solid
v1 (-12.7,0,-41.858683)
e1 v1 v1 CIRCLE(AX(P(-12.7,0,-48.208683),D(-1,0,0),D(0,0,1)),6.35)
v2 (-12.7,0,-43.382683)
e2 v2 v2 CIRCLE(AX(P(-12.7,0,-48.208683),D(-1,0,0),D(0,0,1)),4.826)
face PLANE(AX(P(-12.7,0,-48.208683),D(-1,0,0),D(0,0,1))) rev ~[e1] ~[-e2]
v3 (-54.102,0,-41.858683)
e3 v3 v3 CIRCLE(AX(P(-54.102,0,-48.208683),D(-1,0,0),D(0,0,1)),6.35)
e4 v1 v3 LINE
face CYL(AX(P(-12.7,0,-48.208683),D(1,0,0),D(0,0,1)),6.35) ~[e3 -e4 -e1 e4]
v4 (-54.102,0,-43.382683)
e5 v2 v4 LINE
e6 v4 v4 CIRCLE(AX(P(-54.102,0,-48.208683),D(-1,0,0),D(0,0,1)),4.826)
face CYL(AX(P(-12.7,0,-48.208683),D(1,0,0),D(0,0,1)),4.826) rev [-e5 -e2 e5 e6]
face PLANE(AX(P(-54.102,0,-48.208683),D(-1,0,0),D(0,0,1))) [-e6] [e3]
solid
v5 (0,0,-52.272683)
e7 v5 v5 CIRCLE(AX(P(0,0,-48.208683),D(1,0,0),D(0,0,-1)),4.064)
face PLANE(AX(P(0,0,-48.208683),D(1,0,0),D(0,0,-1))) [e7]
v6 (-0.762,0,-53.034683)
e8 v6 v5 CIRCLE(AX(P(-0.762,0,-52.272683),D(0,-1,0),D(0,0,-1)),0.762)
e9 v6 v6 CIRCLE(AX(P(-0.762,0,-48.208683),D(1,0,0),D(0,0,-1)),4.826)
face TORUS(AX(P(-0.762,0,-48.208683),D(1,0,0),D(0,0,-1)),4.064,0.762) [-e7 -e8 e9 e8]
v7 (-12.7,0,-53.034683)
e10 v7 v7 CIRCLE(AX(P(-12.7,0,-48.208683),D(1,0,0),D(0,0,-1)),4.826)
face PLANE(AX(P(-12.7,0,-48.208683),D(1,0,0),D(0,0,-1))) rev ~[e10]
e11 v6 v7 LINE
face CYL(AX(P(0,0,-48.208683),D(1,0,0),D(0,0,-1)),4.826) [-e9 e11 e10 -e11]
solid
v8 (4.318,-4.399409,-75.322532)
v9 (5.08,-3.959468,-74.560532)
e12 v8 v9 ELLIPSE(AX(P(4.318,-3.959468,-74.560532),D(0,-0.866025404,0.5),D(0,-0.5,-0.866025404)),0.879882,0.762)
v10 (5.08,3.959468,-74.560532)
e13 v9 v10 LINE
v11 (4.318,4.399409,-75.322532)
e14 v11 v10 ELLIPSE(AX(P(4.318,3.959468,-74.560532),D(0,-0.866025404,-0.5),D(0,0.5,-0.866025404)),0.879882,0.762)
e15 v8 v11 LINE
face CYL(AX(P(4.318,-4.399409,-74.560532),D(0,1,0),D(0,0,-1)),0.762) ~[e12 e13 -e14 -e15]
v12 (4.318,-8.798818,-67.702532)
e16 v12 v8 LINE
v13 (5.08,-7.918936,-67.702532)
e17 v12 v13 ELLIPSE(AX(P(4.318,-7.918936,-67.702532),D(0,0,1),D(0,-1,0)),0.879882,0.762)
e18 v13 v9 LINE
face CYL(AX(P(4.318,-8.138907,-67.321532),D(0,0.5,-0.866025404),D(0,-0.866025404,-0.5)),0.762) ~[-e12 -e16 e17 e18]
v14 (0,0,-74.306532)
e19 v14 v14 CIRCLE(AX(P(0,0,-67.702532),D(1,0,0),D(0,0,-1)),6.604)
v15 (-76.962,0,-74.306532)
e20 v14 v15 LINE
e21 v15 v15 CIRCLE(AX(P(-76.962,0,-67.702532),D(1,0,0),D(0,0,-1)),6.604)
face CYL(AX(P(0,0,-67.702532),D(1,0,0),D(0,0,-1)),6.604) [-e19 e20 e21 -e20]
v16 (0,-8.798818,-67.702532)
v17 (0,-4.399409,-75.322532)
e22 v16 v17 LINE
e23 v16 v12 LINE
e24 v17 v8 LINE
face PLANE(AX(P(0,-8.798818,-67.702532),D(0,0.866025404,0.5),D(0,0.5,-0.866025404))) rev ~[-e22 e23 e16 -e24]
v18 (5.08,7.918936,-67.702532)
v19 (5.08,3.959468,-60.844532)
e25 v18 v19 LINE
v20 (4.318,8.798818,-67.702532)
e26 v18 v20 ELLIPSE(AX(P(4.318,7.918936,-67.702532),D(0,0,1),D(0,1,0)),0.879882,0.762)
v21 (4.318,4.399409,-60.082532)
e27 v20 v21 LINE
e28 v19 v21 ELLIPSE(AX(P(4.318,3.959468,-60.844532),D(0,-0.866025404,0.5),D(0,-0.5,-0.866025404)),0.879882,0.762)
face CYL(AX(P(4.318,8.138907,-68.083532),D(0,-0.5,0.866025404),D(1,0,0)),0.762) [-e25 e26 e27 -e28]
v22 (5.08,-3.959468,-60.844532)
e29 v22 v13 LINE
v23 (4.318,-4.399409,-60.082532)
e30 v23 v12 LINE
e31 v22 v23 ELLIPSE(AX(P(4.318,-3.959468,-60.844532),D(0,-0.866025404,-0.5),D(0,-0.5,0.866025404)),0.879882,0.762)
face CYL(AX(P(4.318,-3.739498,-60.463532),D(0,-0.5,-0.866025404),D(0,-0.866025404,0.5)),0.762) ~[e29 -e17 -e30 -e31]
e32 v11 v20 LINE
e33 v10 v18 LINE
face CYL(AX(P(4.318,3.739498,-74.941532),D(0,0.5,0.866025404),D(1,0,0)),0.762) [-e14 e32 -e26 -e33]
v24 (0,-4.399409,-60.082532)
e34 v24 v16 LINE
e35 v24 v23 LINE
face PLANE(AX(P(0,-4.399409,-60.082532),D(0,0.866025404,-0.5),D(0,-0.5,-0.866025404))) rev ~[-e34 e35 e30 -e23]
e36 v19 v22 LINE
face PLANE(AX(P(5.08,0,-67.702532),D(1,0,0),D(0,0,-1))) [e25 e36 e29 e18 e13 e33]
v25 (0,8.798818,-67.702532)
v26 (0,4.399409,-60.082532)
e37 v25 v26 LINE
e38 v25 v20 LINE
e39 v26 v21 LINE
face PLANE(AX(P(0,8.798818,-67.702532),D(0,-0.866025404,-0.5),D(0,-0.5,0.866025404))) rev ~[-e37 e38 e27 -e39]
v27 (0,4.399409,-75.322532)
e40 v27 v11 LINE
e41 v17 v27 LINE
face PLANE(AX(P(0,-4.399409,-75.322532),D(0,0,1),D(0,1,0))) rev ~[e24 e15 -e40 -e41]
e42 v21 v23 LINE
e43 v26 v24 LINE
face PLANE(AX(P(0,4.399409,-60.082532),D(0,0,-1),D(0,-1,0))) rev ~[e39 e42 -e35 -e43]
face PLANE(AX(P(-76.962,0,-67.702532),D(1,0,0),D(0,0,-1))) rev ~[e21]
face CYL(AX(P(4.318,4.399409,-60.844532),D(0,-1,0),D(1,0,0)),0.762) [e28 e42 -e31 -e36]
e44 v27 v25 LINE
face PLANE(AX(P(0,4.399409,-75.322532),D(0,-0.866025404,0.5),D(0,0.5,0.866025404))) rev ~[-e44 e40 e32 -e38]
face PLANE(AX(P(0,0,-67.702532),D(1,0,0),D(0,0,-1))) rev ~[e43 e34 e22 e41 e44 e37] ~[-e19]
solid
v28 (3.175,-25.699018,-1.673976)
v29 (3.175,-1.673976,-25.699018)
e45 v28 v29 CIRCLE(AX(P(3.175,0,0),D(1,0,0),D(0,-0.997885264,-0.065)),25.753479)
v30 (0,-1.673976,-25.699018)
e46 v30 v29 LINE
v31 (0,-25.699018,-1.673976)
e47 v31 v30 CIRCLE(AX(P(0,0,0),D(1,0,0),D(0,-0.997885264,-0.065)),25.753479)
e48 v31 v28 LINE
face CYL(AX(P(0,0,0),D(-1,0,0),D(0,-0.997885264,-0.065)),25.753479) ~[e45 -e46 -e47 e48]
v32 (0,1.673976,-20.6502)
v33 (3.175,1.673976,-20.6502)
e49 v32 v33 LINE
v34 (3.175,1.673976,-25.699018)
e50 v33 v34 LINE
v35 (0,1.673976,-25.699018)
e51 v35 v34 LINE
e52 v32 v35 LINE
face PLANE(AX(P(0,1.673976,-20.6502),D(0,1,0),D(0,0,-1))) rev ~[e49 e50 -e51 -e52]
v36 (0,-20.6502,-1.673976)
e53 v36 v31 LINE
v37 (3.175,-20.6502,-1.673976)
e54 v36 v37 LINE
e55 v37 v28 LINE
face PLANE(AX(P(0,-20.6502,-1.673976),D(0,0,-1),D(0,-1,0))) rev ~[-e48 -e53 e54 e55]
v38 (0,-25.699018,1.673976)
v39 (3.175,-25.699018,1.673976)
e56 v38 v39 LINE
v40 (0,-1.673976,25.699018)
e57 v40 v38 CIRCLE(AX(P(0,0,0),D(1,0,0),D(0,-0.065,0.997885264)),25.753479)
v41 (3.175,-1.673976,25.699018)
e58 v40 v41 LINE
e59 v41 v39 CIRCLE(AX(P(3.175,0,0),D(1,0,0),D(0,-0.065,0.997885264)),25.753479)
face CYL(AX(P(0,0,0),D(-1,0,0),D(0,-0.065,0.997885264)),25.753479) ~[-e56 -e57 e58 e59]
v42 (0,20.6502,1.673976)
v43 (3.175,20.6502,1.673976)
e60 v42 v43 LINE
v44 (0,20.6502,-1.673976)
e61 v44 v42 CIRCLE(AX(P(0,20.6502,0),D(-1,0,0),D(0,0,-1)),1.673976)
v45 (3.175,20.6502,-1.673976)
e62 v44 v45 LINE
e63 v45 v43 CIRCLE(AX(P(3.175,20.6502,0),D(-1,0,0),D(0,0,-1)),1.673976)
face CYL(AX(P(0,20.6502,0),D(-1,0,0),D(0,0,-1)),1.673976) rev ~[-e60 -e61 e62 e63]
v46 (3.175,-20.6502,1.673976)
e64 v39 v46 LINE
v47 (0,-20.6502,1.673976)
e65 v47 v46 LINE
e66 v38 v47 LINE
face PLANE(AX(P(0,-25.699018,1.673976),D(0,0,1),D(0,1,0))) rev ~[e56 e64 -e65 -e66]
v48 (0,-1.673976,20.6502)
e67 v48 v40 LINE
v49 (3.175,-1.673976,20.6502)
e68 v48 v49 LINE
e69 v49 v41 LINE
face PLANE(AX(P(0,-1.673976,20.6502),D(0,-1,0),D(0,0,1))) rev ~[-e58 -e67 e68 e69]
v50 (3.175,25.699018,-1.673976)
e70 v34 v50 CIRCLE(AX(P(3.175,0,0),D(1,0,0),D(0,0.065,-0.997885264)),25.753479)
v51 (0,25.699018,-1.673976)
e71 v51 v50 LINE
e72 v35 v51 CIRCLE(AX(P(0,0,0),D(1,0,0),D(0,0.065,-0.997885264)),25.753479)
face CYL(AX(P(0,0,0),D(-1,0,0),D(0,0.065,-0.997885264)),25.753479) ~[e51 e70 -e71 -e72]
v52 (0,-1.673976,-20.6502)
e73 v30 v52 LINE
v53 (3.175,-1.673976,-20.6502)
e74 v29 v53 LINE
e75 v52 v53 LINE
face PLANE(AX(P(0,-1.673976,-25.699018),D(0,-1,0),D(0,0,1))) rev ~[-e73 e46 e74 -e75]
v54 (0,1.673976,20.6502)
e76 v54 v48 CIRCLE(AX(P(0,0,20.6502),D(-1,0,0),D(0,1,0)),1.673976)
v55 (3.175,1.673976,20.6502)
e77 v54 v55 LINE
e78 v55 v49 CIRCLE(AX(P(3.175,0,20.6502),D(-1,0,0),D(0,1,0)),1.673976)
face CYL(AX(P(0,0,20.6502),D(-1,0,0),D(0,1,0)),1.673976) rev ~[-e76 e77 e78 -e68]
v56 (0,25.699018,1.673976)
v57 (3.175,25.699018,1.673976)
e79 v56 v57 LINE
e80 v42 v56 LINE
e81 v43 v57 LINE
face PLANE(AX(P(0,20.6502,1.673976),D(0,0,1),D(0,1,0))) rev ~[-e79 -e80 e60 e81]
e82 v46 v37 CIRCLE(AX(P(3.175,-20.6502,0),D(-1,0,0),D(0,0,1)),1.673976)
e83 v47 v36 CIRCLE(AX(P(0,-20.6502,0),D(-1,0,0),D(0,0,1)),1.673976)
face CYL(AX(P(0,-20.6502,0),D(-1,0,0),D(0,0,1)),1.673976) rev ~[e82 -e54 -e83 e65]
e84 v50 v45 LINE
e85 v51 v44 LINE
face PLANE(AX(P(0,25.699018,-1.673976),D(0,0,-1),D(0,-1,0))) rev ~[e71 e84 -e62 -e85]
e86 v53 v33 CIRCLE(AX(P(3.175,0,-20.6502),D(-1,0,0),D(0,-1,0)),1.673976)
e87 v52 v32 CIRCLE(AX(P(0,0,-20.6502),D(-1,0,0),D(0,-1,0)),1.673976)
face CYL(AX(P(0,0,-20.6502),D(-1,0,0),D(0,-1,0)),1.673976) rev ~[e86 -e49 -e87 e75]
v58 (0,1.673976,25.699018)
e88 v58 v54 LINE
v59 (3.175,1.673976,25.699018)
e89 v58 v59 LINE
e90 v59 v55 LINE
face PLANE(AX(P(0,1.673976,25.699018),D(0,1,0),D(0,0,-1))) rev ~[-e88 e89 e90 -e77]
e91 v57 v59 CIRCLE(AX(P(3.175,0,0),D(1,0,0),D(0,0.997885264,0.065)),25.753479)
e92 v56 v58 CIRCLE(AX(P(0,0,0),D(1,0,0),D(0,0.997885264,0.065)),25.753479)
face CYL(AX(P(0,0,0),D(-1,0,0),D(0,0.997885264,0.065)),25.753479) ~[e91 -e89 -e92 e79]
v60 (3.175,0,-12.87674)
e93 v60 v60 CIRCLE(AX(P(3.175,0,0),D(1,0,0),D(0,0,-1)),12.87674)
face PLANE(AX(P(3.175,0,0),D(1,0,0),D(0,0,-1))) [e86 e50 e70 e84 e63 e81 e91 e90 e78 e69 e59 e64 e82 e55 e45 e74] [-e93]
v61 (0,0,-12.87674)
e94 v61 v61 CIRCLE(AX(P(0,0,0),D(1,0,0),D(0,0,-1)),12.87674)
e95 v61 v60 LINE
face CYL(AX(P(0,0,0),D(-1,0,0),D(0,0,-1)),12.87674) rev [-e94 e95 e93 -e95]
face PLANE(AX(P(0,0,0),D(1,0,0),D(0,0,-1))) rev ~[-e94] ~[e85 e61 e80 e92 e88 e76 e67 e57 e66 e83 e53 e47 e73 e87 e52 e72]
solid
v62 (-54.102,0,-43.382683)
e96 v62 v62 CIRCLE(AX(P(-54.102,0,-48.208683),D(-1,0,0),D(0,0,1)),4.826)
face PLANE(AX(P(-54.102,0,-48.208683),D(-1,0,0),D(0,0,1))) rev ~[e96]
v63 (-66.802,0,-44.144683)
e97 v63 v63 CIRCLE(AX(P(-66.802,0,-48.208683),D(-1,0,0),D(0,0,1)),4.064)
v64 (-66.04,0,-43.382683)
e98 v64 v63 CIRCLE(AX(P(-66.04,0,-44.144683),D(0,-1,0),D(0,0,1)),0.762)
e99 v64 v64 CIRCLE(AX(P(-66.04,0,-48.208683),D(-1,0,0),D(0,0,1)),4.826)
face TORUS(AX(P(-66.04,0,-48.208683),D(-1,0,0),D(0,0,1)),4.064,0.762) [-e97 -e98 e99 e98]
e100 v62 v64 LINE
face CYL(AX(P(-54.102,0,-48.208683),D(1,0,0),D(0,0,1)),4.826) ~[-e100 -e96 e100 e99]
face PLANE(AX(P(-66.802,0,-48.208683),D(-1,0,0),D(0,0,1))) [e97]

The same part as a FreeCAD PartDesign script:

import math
import FreeCAD as App
import Part
import Sketcher
Q = App.Units.Quantity


def edges_at(feature, points):
    """Names of the edges that pass closest to the given points."""
    edges = feature.Shape.Edges
    near = lambda p: min(range(len(edges)), key=lambda i: edges[i].distToShape(Part.Vertex(*p))[0])
    return sorted({f"Edge{near(p) + 1}" for p in points})

doc = App.newDocument("Part")
body = doc.addObject("PartDesign::Body", "Body")

sketch1 = body.newObject("Sketcher::SketchObject", "Sketch")
sketch1.AttachmentSupport = (doc.getObject("YZ_Plane"), [""])
sketch1.MapMode = "FlatFace"
sketch1.addGeometry([
    Part.LineSegment(App.Vector(1.7, -20.7, 0), App.Vector(1.7, -25.7, 0)),
    Part.ArcOfCircle(Part.Circle(App.Vector(0, 0, 0), App.Vector(0, 0, 1), 25.8), math.radians(-86), math.radians(-4)),
    Part.LineSegment(App.Vector(25.7, -1.7, 0), App.Vector(20.7, -1.7, 0)),
    Part.ArcOfCircle(Part.Circle(App.Vector(20.7, 0, 0), App.Vector(0, 0, 1), 1.7), math.radians(90), math.radians(270)),
    Part.LineSegment(App.Vector(20.7, 1.7, 0), App.Vector(25.7, 1.7, 0)),
    Part.ArcOfCircle(Part.Circle(App.Vector(0, 0, 0), App.Vector(0, 0, 1), 25.8), math.radians(4), math.radians(86)),
    Part.LineSegment(App.Vector(1.7, 25.7, 0), App.Vector(1.7, 20.7, 0)),
    Part.ArcOfCircle(Part.Circle(App.Vector(0, 20.7, 0), App.Vector(0, 0, 1), 1.7), math.radians(180), math.radians(360)),
    Part.LineSegment(App.Vector(-1.7, 20.7, 0), App.Vector(-1.7, 25.7, 0)),
    Part.ArcOfCircle(Part.Circle(App.Vector(0, 0, 0), App.Vector(0, 0, 1), 25.8), math.radians(94), math.radians(176)),
    Part.LineSegment(App.Vector(-25.7, 1.7, 0), App.Vector(-20.7, 1.7, 0)),
    Part.ArcOfCircle(Part.Circle(App.Vector(-20.7, 0, 0), App.Vector(0, 0, 1), 1.7), math.radians(-90), math.radians(90)),
    Part.LineSegment(App.Vector(-20.7, -1.7, 0), App.Vector(-25.7, -1.7, 0)),
    Part.ArcOfCircle(Part.Circle(App.Vector(0, 0, 0), App.Vector(0, 0, 1), 25.8), math.radians(-176), math.radians(-94)),
    Part.LineSegment(App.Vector(-1.7, -25.7, 0), App.Vector(-1.7, -20.7, 0)),
    Part.ArcOfCircle(Part.Circle(App.Vector(0, -20.7, 0), App.Vector(0, 0, 1), 1.7), math.radians(0), math.radians(180)),
    Part.Circle(App.Vector(0, 0, 0), App.Vector(0, 0, 1), 12.9),
], False)
sketch1.addConstraint([
    Sketcher.Constraint("Coincident", 0, 2, 1, 1),
    Sketcher.Constraint("Coincident", 1, 2, 2, 1),
    Sketcher.Constraint("Tangent", 2, 2, 3, 2),
    Sketcher.Constraint("Tangent", 3, 1, 4, 1),
    Sketcher.Constraint("Coincident", 4, 2, 5, 1),
    Sketcher.Constraint("Coincident", 5, 2, 6, 1),
    Sketcher.Constraint("Tangent", 6, 2, 7, 2),
    Sketcher.Constraint("Tangent", 7, 1, 8, 1),
    Sketcher.Constraint("Coincident", 8, 2, 9, 1),
    Sketcher.Constraint("Coincident", 9, 2, 10, 1),
    Sketcher.Constraint("Tangent", 10, 2, 11, 2),
    Sketcher.Constraint("Tangent", 11, 1, 12, 1),
    Sketcher.Constraint("Coincident", 12, 2, 13, 1),
    Sketcher.Constraint("Coincident", 13, 2, 14, 1),
    Sketcher.Constraint("Tangent", 14, 2, 15, 2),
    Sketcher.Constraint("Tangent", 15, 1, 0, 1),
    Sketcher.Constraint("Vertical", 0),
    Sketcher.Constraint("Horizontal", 2),
    Sketcher.Constraint("Horizontal", 4),
    Sketcher.Constraint("Vertical", 6),
    Sketcher.Constraint("Vertical", 8),
    Sketcher.Constraint("Horizontal", 10),
    Sketcher.Constraint("Horizontal", 12),
    Sketcher.Constraint("Vertical", 14),
    Sketcher.Constraint("Coincident", 1, 3, -1, 1),
    Sketcher.Constraint("Coincident", 5, 3, -1, 1),
    Sketcher.Constraint("Coincident", 9, 3, -1, 1),
    Sketcher.Constraint("Coincident", 13, 3, -1, 1),
    Sketcher.Constraint("Coincident", 16, 3, -1, 1),
    Sketcher.Constraint("Equal", 1, 5),
    Sketcher.Constraint("Equal", 3, 7),
    Sketcher.Constraint("Equal", 5, 9),
    Sketcher.Constraint("Equal", 7, 11),
    Sketcher.Constraint("Equal", 9, 13),
    Sketcher.Constraint("Equal", 11, 15),
    Sketcher.Constraint("Symmetric", 3, 3, 11, 3, -1, 1),
    Sketcher.Constraint("Symmetric", 7, 3, 15, 3, -1, 1),
    Sketcher.Constraint("PointOnObject", 3, 3, -1),
    Sketcher.Constraint("PointOnObject", 7, 3, -2),
    Sketcher.Constraint("Equal", 12, 0),
    Sketcher.Constraint("Diameter", 16, Q("25.753479 mm")),
    Sketcher.Constraint("DistanceX", -1, 1, 3, 3, Q("0.813 in")),
    Sketcher.Constraint("Radius", 1, Q("25.753479 mm")),
    Sketcher.Constraint("Radius", 3, Q("1.673976 mm")),
])
pad1 = body.newObject("PartDesign::Pad", "Pad")
pad1.Profile = sketch1
pad1.Length = Q("0.125 in")
body2 = doc.addObject("PartDesign::Body", "Body001")

sketch2 = body2.newObject("Sketcher::SketchObject", "Sketch001")
sketch2.AttachmentSupport = (doc.getObject("YZ_Plane001"), [""])
sketch2.MapMode = "FlatFace"
sketch2.addGeometry(Part.Circle(App.Vector(0, -48.2, 0), App.Vector(0, 0, 1), 4.8), False)
sketch2.addConstraint([
    Sketcher.Constraint("PointOnObject", 0, 3, -2),
    Sketcher.Constraint("Diameter", 0, Q("0.38 in")),
    Sketcher.Constraint("DistanceY", 0, 3, -1, 1, Q("48.208683 mm")),
])
pad2 = body2.newObject("PartDesign::Pad", "Pad001")
pad2.Profile = sketch2
pad2.Length = Q("0.5 in")
pad2.Reversed = True
doc.recompute()

fillet = body2.newObject("PartDesign::Fillet", "Fillet")
fillet.Base = (pad2, edges_at(pad2, [(0, 0, -43.383)]))
fillet.Radius = Q("0.03 in")
body3 = doc.addObject("PartDesign::Body", "Body002")

sketch3 = body3.newObject("Sketcher::SketchObject", "Sketch002")
sketch3.AttachmentSupport = (doc.getObject("YZ_Plane002"), [""])
sketch3.MapMode = "FlatFace"
sketch3.AttachmentOffset = App.Placement(App.Vector(0, 0, -0.5 * 25.4), App.Rotation())
sketch3.addGeometry([
    Part.Circle(App.Vector(0, -48.2, 0), App.Vector(0, 0, 1), 6.3),
    Part.Circle(App.Vector(0, -48.2, 0), App.Vector(0, 0, 1), 4.8),
], False)
sketch3.addConstraint([
    Sketcher.Constraint("Coincident", 1, 3, 0, 3),
    Sketcher.Constraint("PointOnObject", 0, 3, -2),
    Sketcher.Constraint("Diameter", 0, Q("0.5 in")),
    Sketcher.Constraint("Diameter", 1, Q("0.38 in")),
    Sketcher.Constraint("DistanceY", 0, 3, -1, 1, Q("48.208683 mm")),
])
pad3 = body3.newObject("PartDesign::Pad", "Pad002")
pad3.Profile = sketch3
pad3.Length = Q("1.63 in")
pad3.Reversed = True
body4 = doc.addObject("PartDesign::Body", "Body003")

sketch4 = body4.newObject("Sketcher::SketchObject", "Sketch003")
sketch4.AttachmentSupport = (doc.getObject("YZ_Plane003"), [""])
sketch4.MapMode = "FlatFace"
sketch4.AttachmentOffset = App.Placement(App.Vector(0, 0, -2.13 * 25.4), App.Rotation())
sketch4.addGeometry(Part.Circle(App.Vector(0, -48.2, 0), App.Vector(0, 0, 1), 4.8), False)
sketch4.addConstraint([
    Sketcher.Constraint("PointOnObject", 0, 3, -2),
    Sketcher.Constraint("Diameter", 0, Q("0.38 in")),
    Sketcher.Constraint("DistanceY", 0, 3, -1, 1, Q("48.208683 mm")),
])
pad4 = body4.newObject("PartDesign::Pad", "Pad003")
pad4.Profile = sketch4
pad4.Length = Q("0.5 in")
pad4.Reversed = True
doc.recompute()

fillet2 = body4.newObject("PartDesign::Fillet", "Fillet001")
fillet2.Base = (pad4, edges_at(pad4, [(-66.802, 0, -53.035)]))
fillet2.Radius = Q("0.03 in")
body5 = doc.addObject("PartDesign::Body", "Body004")

sketch5 = body5.newObject("Sketcher::SketchObject", "Sketch004")
sketch5.AttachmentSupport = (doc.getObject("YZ_Plane004"), [""])
sketch5.MapMode = "FlatFace"
sketch5.addGeometry(Part.Circle(App.Vector(0, -68, 0), App.Vector(0, 0, 1), 7), False)
sketch5.addConstraint([
    Sketcher.Constraint("PointOnObject", 0, 3, -2),
    Sketcher.Constraint("Diameter", 0, Q("0.52 in")),
    Sketcher.Constraint("DistanceY", 0, 3, -1, 1, Q("67.702532 mm")),
])
pad5 = body5.newObject("PartDesign::Pad", "Pad004")
pad5.Profile = sketch5
pad5.Length = Q("3.03 in")
pad5.Reversed = True

sketch6 = body5.newObject("Sketcher::SketchObject", "Sketch005")
sketch6.AttachmentSupport = (doc.getObject("YZ_Plane004"), [""])
sketch6.MapMode = "FlatFace"
sketch6.addGeometry([
    Part.LineSegment(App.Vector(-9, -68, 0), App.Vector(-4, -75, 0)),
    Part.LineSegment(App.Vector(-4, -75, 0), App.Vector(4, -75, 0)),
    Part.LineSegment(App.Vector(4, -75, 0), App.Vector(9, -68, 0)),
    Part.LineSegment(App.Vector(9, -68, 0), App.Vector(4, -60, 0)),
    Part.LineSegment(App.Vector(4, -60, 0), App.Vector(-4, -60, 0)),
    Part.LineSegment(App.Vector(-4, -60, 0), App.Vector(-9, -68, 0)),
], False)
sketch6.addConstraint([
    Sketcher.Constraint("Coincident", 0, 2, 1, 1),
    Sketcher.Constraint("Coincident", 1, 2, 2, 1),
    Sketcher.Constraint("Coincident", 2, 2, 3, 1),
    Sketcher.Constraint("Coincident", 3, 2, 4, 1),
    Sketcher.Constraint("Coincident", 4, 2, 5, 1),
    Sketcher.Constraint("Coincident", 5, 2, 0, 1),
    Sketcher.Constraint("Horizontal", 1),
    Sketcher.Constraint("Horizontal", 4),
    Sketcher.Constraint("Symmetric", 2, 2, 5, 2, -2),
    Sketcher.Constraint("Parallel", 0, 3),
    Sketcher.Constraint("Parallel", 2, 5),
    Sketcher.Constraint("Vertical", 1, 2, 3, 2),
    Sketcher.Constraint("Vertical", 0, 2, 4, 2),
    Sketcher.Constraint("Angle", 0, Q("-60 deg")),
    Sketcher.Constraint("DistanceY", 1, 2, 2, 2, Q("0.3 in")),
    Sketcher.Constraint("DistanceX", 1, 1, 1, 2, Q("8.798818 mm")),
    Sketcher.Constraint("DistanceY", 0, 2, -1, 1, Q("75.322532 mm")),
])
pad6 = body5.newObject("PartDesign::Pad", "Pad005")
pad6.Profile = sketch6
pad6.Length = Q("0.2 in")
doc.recompute()

fillet3 = body5.newObject("PartDesign::Fillet", "Fillet002")
fillet3.Base = (pad6, edges_at(pad6, [
    (5.08, 0, -60.083),
    (5.08, -6.599, -63.893),
    (5.08, -6.599, -71.513),
    (5.08, 0, -75.323),
    (5.08, 6.599, -71.513),
    (5.08, 6.599, -63.893),
]))
fillet3.Radius = Q("0.03 in")

doc.recompute()
